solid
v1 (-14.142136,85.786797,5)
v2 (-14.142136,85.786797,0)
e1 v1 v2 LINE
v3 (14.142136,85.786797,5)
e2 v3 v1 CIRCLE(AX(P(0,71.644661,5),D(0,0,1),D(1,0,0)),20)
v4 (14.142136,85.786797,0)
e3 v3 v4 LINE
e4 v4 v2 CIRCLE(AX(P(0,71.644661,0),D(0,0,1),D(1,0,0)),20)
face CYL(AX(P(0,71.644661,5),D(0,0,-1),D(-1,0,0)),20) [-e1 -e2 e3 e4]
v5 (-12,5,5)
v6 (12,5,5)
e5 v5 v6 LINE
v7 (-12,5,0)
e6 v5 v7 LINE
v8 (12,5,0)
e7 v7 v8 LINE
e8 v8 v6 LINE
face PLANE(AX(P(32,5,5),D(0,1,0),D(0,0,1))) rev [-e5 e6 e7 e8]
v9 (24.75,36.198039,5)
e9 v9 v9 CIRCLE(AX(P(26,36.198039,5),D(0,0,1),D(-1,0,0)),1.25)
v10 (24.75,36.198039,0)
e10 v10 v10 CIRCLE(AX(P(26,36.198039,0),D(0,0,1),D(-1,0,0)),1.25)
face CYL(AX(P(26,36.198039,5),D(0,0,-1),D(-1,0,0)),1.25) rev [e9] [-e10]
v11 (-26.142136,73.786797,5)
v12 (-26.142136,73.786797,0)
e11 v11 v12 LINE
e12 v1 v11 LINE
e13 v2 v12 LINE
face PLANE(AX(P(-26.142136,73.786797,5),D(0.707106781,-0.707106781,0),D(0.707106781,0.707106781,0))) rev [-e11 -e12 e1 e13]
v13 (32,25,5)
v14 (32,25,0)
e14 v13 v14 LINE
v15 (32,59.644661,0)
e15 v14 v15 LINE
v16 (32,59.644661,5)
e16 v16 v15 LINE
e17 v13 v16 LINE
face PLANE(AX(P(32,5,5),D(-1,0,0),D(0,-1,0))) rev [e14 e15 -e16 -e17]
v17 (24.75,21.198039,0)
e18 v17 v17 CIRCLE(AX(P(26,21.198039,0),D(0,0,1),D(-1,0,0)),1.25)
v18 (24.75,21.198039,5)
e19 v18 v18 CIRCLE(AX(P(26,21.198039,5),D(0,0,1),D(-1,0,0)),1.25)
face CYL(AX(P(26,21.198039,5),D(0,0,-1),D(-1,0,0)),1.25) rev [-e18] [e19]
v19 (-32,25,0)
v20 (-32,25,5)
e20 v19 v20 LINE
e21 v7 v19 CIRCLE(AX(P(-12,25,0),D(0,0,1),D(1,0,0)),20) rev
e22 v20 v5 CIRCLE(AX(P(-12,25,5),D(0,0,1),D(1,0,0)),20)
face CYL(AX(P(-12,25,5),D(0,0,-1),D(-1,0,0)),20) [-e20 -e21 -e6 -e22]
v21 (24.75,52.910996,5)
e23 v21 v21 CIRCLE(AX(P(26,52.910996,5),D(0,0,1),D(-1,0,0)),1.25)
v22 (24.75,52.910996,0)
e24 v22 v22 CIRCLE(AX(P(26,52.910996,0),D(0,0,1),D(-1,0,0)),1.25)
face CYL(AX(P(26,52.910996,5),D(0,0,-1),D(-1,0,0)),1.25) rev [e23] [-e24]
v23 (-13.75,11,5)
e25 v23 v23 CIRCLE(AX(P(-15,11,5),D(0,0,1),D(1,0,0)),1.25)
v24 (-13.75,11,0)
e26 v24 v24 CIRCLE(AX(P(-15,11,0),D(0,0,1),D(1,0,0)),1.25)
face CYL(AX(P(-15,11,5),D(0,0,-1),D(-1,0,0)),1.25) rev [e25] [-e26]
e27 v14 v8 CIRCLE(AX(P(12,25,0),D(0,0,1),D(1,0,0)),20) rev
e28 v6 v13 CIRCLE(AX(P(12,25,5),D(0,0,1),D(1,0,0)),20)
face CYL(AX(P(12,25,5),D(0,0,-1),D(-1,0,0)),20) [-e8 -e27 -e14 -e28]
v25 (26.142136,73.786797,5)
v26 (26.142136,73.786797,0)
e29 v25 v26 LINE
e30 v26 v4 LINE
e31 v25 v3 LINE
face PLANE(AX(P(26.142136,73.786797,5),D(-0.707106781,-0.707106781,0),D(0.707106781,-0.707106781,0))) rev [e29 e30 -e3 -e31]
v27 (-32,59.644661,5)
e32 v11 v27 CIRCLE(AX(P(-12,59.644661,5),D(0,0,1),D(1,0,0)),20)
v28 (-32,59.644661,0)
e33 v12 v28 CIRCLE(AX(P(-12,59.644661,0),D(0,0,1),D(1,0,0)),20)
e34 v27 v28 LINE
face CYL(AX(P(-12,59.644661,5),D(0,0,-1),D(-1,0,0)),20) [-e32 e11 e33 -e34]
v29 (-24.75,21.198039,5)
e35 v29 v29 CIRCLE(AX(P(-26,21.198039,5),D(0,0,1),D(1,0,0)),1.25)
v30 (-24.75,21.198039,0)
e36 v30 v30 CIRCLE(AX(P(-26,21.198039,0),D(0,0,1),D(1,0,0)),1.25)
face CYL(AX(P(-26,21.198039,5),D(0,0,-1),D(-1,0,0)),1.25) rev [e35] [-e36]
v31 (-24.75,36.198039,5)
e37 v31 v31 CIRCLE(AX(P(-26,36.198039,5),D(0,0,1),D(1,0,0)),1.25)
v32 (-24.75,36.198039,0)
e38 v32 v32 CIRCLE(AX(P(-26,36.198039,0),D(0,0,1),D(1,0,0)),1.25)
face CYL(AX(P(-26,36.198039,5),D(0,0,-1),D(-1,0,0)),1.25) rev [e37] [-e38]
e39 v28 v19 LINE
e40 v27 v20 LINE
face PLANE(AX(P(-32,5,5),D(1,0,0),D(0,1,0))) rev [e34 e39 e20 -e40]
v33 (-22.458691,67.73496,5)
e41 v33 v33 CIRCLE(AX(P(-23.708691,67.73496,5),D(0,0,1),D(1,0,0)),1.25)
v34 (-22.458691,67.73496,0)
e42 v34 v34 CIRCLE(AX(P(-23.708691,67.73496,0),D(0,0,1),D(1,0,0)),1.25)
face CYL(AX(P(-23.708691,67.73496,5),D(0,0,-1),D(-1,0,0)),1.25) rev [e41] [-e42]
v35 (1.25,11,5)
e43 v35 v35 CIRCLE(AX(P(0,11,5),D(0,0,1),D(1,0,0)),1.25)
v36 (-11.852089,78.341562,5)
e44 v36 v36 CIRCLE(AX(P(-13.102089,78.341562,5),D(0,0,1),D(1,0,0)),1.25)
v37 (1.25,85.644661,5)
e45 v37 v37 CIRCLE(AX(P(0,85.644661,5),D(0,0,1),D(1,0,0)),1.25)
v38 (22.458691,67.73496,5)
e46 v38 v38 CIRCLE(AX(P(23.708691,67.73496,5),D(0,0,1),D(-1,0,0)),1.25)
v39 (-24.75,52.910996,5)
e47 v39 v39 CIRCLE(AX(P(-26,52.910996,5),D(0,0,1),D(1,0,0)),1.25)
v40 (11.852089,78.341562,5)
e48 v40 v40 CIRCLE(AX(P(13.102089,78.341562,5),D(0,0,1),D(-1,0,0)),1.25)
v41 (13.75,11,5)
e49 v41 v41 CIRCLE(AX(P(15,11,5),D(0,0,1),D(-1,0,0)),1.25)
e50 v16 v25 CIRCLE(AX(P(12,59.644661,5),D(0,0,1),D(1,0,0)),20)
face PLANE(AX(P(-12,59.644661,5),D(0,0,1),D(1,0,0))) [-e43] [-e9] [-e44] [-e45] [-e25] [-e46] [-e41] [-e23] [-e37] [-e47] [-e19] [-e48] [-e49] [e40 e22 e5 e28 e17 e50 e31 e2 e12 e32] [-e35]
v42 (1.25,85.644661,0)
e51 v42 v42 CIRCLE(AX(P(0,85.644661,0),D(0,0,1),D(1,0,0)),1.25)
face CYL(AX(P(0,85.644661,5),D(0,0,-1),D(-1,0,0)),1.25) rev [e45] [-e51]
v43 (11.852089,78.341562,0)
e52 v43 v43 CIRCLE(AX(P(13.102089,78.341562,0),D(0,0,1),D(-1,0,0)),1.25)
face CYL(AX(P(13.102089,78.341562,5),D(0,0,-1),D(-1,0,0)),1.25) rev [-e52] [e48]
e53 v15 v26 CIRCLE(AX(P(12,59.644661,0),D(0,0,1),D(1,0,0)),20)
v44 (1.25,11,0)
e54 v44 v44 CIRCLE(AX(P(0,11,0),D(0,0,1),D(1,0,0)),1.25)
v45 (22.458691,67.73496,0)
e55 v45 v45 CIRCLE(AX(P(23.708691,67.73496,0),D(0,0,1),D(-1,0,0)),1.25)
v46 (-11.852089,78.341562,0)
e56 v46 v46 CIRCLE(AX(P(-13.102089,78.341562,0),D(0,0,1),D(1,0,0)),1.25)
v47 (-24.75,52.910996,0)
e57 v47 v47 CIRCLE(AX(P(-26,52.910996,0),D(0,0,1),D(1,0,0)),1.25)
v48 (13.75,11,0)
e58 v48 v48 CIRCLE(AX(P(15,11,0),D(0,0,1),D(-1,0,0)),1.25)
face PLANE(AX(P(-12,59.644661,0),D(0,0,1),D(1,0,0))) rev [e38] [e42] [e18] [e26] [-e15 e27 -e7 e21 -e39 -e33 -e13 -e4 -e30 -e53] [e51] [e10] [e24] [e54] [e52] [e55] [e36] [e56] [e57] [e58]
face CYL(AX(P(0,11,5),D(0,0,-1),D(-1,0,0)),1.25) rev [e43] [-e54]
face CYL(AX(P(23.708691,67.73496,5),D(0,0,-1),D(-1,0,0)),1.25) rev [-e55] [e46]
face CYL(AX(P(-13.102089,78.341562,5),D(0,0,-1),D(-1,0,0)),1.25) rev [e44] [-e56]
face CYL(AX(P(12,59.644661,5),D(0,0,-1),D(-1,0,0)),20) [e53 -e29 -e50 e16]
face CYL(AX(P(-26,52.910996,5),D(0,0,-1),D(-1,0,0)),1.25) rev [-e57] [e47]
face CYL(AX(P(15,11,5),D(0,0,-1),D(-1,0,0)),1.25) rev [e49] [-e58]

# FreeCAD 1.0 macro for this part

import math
import FreeCAD as App
import Part
import Sketcher
Q = App.Units.Quantity


def edges_at(feature, points):
    """Names of the edges that pass closest to the given points."""
    edges = feature.Shape.Edges
    near = lambda p: min(range(len(edges)), key=lambda i: edges[i].distToShape(Part.Vertex(*p))[0])
    return sorted({f"Edge{near(p) + 1}" for p in points})

doc = App.newDocument("Part")
params = doc.addObject("Spreadsheet::Sheet", "Params")
for row, (alias, value) in enumerate([
    ("sketch1_radius", "20 mm"),
    ("sketch1_diameter", "2.5 mm"),
    ("sketch1_width", "64 mm"),
    ("pad1_length", "5 mm"),
    ("fillet_radius", "20 mm"),
], start=1):
    params.set(f"A{row}", alias)
    params.set(f"B{row}", "=" + value)
    params.setAlias(f"B{row}", alias)

body = doc.addObject("PartDesign::Body", "Body")

sketch1 = body.newObject("Sketcher::SketchObject", "Sketch")
sketch1.AttachmentSupport = (doc.getObject("XY_Plane"), [""])
sketch1.MapMode = "FlatFace"
sketch1.addGeometry(Part.LineSegment(App.Vector(-32, 5, 0), App.Vector(32, 5, 0)), False)
sketch1.addGeometry(Part.LineSegment(App.Vector(32, 5, 0), App.Vector(32, 59.644661, 0)), False)
sketch1.addGeometry(Part.ArcOfCircle(Part.Circle(App.Vector(12, 59.644661, 0), App.Vector(0, 0, 1), 20), math.radians(0), math.radians(45)), False)
sketch1.addGeometry(Part.LineSegment(App.Vector(26.142136, 73.786797, 0), App.Vector(14.142136, 85.786797, 0)), False)
sketch1.addGeometry(Part.ArcOfCircle(Part.Circle(App.Vector(0, 71.644661, 0), App.Vector(0, 0, 1), 20), math.radians(45), math.radians(135)), False)
sketch1.addGeometry(Part.LineSegment(App.Vector(-14.142136, 85.786797, 0), App.Vector(-26.142136, 73.786797, 0)), False)
sketch1.addGeometry(Part.ArcOfCircle(Part.Circle(App.Vector(-12, 59.644661, 0), App.Vector(0, 0, 1), 20), math.radians(135), math.radians(180)), False)
sketch1.addGeometry(Part.LineSegment(App.Vector(-32, 59.644661, 0), App.Vector(-32, 5, 0)), False)
sketch1.addGeometry(Part.Circle(App.Vector(15, 11, 0), App.Vector(0, 0, 1), 1.25), False)
sketch1.addGeometry(Part.Circle(App.Vector(26, 21.198039, 0), App.Vector(0, 0, 1), 1.25), False)
sketch1.addGeometry(Part.Circle(App.Vector(26, 36.198039, 0), App.Vector(0, 0, 1), 1.25), False)
sketch1.addGeometry(Part.Circle(App.Vector(0, 11, 0), App.Vector(0, 0, 1), 1.25), False)
sketch1.addGeometry(Part.Circle(App.Vector(-15, 11, 0), App.Vector(0, 0, 1), 1.25), False)
sketch1.addGeometry(Part.Circle(App.Vector(-26, 21.198039, 0), App.Vector(0, 0, 1), 1.25), False)
sketch1.addGeometry(Part.Circle(App.Vector(-26, 36.198039, 0), App.Vector(0, 0, 1), 1.25), False)
sketch1.addGeometry(Part.Circle(App.Vector(26, 52.910996, 0), App.Vector(0, 0, 1), 1.25), False)
sketch1.addGeometry(Part.Circle(App.Vector(23.708691, 67.73496, 0), App.Vector(0, 0, 1), 1.25), False)
sketch1.addGeometry(Part.Circle(App.Vector(13.102089, 78.341562, 0), App.Vector(0, 0, 1), 1.25), False)
sketch1.addGeometry(Part.Circle(App.Vector(-26, 52.910996, 0), App.Vector(0, 0, 1), 1.25), False)
sketch1.addGeometry(Part.Circle(App.Vector(0, 85.644661, 0), App.Vector(0, 0, 1), 1.25), False)
sketch1.addGeometry(Part.Circle(App.Vector(-13.102089, 78.341562, 0), App.Vector(0, 0, 1), 1.25), False)
sketch1.addGeometry(Part.Circle(App.Vector(-23.708691, 67.73496, 0), App.Vector(0, 0, 1), 1.25), False)
sketch1.addConstraint(Sketcher.Constraint("Coincident", 0, 2, 1, 1))
sketch1.addConstraint(Sketcher.Constraint("Tangent", 1, 2, 2, 1))
sketch1.addConstraint(Sketcher.Constraint("Tangent", 2, 2, 3, 1))
sketch1.addConstraint(Sketcher.Constraint("Tangent", 3, 2, 4, 1))
sketch1.addConstraint(Sketcher.Constraint("Tangent", 4, 2, 5, 1))
sketch1.addConstraint(Sketcher.Constraint("Tangent", 5, 2, 6, 1))
sketch1.addConstraint(Sketcher.Constraint("Tangent", 6, 2, 7, 1))
sketch1.addConstraint(Sketcher.Constraint("Coincident", 7, 2, 0, 1))
sketch1.addConstraint(Sketcher.Constraint("Horizontal", 0))
sketch1.addConstraint(Sketcher.Constraint("Vertical", 1))
sketch1.addConstraint(Sketcher.Constraint("Vertical", 7))
sketch1.addConstraint(Sketcher.Constraint("Equal", 2, 4))
sketch1.addConstraint(Sketcher.Constraint("Equal", 4, 6))
sketch1.addConstraint(Sketcher.Constraint("Equal", 8, 9))
sketch1.addConstraint(Sketcher.Constraint("Equal", 9, 10))
sketch1.addConstraint(Sketcher.Constraint("Equal", 10, 11))
sketch1.addConstraint(Sketcher.Constraint("Equal", 11, 12))
sketch1.addConstraint(Sketcher.Constraint("Equal", 12, 13))
sketch1.addConstraint(Sketcher.Constraint("Equal", 13, 14))
sketch1.addConstraint(Sketcher.Constraint("Equal", 14, 15))
sketch1.addConstraint(Sketcher.Constraint("Equal", 15, 16))
sketch1.addConstraint(Sketcher.Constraint("Equal", 16, 17))
sketch1.addConstraint(Sketcher.Constraint("Equal", 17, 18))
sketch1.addConstraint(Sketcher.Constraint("Equal", 18, 19))
sketch1.addConstraint(Sketcher.Constraint("Equal", 19, 20))
sketch1.addConstraint(Sketcher.Constraint("Equal", 20, 21))
sketch1.addConstraint(Sketcher.Constraint("Symmetric", 2, 3, 6, 3, -2))
sketch1.addConstraint(Sketcher.Constraint("Symmetric", 8, 3, 12, 3, -2))
sketch1.addConstraint(Sketcher.Constraint("Symmetric", 9, 3, 13, 3, -2))
sketch1.addConstraint(Sketcher.Constraint("Symmetric", 10, 3, 14, 3, -2))
sketch1.addConstraint(Sketcher.Constraint("Symmetric", 15, 3, 18, 3, -2))
sketch1.addConstraint(Sketcher.Constraint("Symmetric", 17, 3, 20, 3, -2))
sketch1.addConstraint(Sketcher.Constraint("Symmetric", 16, 3, 21, 3, -2))
sketch1.addConstraint(Sketcher.Constraint("PointOnObject", 4, 3, -2))
sketch1.addConstraint(Sketcher.Constraint("PointOnObject", 11, 3, -2))
sketch1.addConstraint(Sketcher.Constraint("PointOnObject", 19, 3, -2))
sketch1.addConstraint(Sketcher.Constraint("Perpendicular", 3, 5))
sketch1.addConstraint(Sketcher.Constraint("Horizontal", 8, 3, 11, 3))
sketch1.addConstraint(Sketcher.Constraint("Vertical", 9, 3, 10, 3))
sketch1.addConstraint(Sketcher.Constraint("Vertical", 10, 3, 15, 3))
sketch1.addConstraint(Sketcher.Constraint("Radius", 2, Q("20 mm")))
sketch1.addConstraint(Sketcher.Constraint("Diameter", 8, Q("2.5 mm")))
sketch1.addConstraint(Sketcher.Constraint("DistanceX", 0, 1, 0, 2, Q("64 mm")))
sketch1.addConstraint(Sketcher.Constraint("DistanceX", -1, 1, 8, 3, Q("15 mm")))
sketch1.addConstraint(Sketcher.Constraint("DistanceY", -1, 1, 8, 3, Q("11 mm")))
sketch1.addConstraint(Sketcher.Constraint("DistanceX", -1, 1, 9, 3, Q("26 mm")))
sketch1.addConstraint(Sketcher.Constraint("DistanceY", -1, 1, 0, 2, Q("5 mm")))
sketch1.addConstraint(Sketcher.Constraint("DistanceY", 9, 3, 10, 3, Q("15 mm")))
sketch1.addConstraint(Sketcher.Constraint("DistanceY", 4, 3, 19, 3, Q("14 mm")))
sketch1.addConstraint(Sketcher.Constraint("DistanceY", 1, 1, 1, 2, Q("54.644661 mm")))
sketch1.addConstraint(Sketcher.Constraint("DistanceY", 2, 3, 16, 3, Q("8.090299 mm")))
sketch1.addConstraint(Sketcher.Constraint("DistanceY", 4, 3, 17, 3, Q("6.696901 mm")))
sketch1.addConstraint(Sketcher.Constraint("DistanceX", 17, 3, 16, 3, Q("10.606602 mm")))
sketch1.addConstraint(Sketcher.Constraint("DistanceY", 15, 3, 2, 2, Q("20.8758 mm")))
sketch1.addConstraint(Sketcher.Constraint("DistanceY", -1, 1, 9, 3, Q("21.198039 mm")))
sketch1.addConstraint(Sketcher.Constraint("DistanceX", -1, 1, 16, 3, Q("23.708691 mm")))
sketch1.setExpression("Constraints[40]", "Params.sketch1_radius")
sketch1.setExpression("Constraints[41]", "Params.sketch1_diameter")
sketch1.setExpression("Constraints[42]", "Params.sketch1_width")
pad1 = body.newObject("PartDesign::Pad", "Pad")
pad1.Profile = sketch1
pad1.setExpression("Length", "Params.pad1_length")
doc.recompute()

fillet = body.newObject("PartDesign::Fillet", "Fillet")
fillet.Base = (pad1, edges_at(pad1, [(32, 5, 2.5), (-32, 5, 2.5)]))
fillet.setExpression("Radius", "Params.fillet_radius")

doc.recompute()
